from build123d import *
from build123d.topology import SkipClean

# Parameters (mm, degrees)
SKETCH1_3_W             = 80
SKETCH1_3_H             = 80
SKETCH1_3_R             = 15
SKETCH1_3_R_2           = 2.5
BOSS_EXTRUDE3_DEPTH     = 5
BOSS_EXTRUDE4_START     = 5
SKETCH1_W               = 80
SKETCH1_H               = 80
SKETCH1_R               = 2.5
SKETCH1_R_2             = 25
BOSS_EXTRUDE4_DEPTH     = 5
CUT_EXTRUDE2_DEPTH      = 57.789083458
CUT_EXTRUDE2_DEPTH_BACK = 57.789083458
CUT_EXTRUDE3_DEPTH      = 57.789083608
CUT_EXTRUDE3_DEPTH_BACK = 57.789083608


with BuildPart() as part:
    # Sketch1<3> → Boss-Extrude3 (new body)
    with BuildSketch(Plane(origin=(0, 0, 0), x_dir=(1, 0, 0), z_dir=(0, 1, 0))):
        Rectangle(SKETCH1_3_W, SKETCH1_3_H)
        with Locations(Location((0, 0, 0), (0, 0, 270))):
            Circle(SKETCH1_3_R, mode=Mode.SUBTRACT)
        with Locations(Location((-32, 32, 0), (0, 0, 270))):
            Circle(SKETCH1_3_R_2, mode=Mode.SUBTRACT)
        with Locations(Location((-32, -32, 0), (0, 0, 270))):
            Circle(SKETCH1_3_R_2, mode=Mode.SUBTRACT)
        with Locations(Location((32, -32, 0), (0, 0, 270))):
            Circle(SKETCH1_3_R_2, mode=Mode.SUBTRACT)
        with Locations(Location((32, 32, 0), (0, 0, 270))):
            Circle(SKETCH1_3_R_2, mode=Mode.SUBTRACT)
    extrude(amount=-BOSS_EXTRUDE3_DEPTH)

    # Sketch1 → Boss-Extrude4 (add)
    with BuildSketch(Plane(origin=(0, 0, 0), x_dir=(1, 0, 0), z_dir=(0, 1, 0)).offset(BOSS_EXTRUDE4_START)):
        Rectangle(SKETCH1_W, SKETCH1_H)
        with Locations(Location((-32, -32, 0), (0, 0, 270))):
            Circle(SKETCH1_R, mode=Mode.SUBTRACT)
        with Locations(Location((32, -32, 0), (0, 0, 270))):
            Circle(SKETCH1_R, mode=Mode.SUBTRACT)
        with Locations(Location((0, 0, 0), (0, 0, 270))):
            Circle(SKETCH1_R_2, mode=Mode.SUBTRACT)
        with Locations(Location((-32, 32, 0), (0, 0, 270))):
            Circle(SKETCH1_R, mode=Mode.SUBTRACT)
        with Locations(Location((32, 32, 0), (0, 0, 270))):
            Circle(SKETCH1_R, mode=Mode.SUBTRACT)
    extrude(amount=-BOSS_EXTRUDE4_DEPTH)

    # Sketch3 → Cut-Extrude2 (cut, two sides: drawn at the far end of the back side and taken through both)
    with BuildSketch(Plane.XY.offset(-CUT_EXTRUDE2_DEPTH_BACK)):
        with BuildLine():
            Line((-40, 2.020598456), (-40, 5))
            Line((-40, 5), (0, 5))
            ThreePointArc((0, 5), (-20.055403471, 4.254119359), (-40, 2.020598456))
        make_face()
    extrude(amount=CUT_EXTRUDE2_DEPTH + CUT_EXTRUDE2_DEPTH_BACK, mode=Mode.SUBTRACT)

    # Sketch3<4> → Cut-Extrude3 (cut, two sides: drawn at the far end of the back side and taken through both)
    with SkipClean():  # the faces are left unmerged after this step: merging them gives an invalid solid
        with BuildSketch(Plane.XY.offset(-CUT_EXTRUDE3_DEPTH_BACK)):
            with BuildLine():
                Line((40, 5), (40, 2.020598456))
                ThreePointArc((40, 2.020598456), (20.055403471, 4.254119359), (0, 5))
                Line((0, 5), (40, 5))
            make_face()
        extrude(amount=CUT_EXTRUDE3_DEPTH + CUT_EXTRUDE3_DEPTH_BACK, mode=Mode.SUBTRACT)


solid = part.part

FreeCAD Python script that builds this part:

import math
import FreeCAD as App
import Part
import Sketcher
from FreeCAD import Vector
Q = App.Units.Quantity


def add_polygon(sketch, points):
    """Adds a closed chain of lines whose ends are joined by coincident constraints."""
    first, n = sketch.GeometryCount, len(points)
    for a, b in zip(points, points[1:] + points[:1]):
        sketch.addGeometry(Part.LineSegment(App.Vector(*a, 0), App.Vector(*b, 0)), False)
    for i in range(n):
        sketch.addConstraint(Sketcher.Constraint("Coincident", first + i, 2, first + (i + 1) % n, 1))

doc = App.newDocument("Part")
body = doc.addObject("PartDesign::Body", "Body")

# Sketch on XZ plane
sketch1 = doc.addObject("Sketcher::SketchObject", "Sketch")
body.addObject(sketch1)
sketch1.AttachmentSupport = (doc.XZ_Plane, [""])
sketch1.MapMode = "FlatFace"
add_polygon(sketch1, [(-40, -40), (-40, 40), (40, 40), (40, -40)])  # lines 0-3
sketch1.addGeometry(Part.Circle(Vector(-32, 32, 0), Vector(0, 0, 1), 2.5), False)  # 4
sketch1.addGeometry(Part.Circle(Vector(32, 32, 0), Vector(0, 0, 1), 2.5), False)  # 5
sketch1.addGeometry(Part.Circle(Vector(-32, -32, 0), Vector(0, 0, 1), 2.5), False)  # 6
sketch1.addGeometry(Part.Circle(Vector(0, 0, 0), Vector(0, 0, 1), 15), False)  # 7
sketch1.addGeometry(Part.Circle(Vector(32, -32, 0), Vector(0, 0, 1), 2.5), False)  # 8
sketch1.addConstraint([
    Sketcher.Constraint("Vertical", 0),
    Sketcher.Constraint("Horizontal", 1),
    Sketcher.Constraint("Vertical", 2),
    Sketcher.Constraint("Horizontal", 3),
    Sketcher.Constraint("Coincident", 7, 3, -1, 1),
    Sketcher.Constraint("Equal", 4, 5),
    Sketcher.Constraint("Equal", 5, 6),
    Sketcher.Constraint("Equal", 6, 8),
    Sketcher.Constraint("Symmetric", 5, 3, 6, 3, -1, 1),
    Sketcher.Constraint("Symmetric", 4, 3, 8, 3, -1, 1),
    Sketcher.Constraint("Symmetric", 0, 2, 2, 2, -1, 1),
    Sketcher.Constraint("Symmetric", 4, 3, 5, 3, -2),
    Sketcher.Constraint("Equal", 3, 0),
    Sketcher.Constraint("Diameter", 4, Q("5 mm")),
    Sketcher.Constraint("Diameter", 7, Q("30 mm")),
    Sketcher.Constraint("DistanceX", 1, 1, 1, 2, Q("80 mm")),
    Sketcher.Constraint("DistanceX", 4, 3, -1, 1, Q("32 mm")),
    Sketcher.Constraint("DistanceY", -1, 1, 4, 3, Q("32 mm")),
])
pad1 = doc.addObject("PartDesign::Pad", "Pad")
body.addObject(pad1)
pad1.Profile = sketch1
pad1.Length = 5

# Sketch on XZ plane
sketch2 = doc.addObject("Sketcher::SketchObject", "Sketch001")
body.addObject(sketch2)
sketch2.AttachmentSupport = (doc.XZ_Plane, [""])
sketch2.MapMode = "FlatFace"
sketch2.AttachmentOffset = App.Placement(Vector(0, 0, -5), App.Rotation())
add_polygon(sketch2, [(-40, -40), (-40, 40), (40, 40), (40, -40)])  # lines 0-3
sketch2.addGeometry(Part.Circle(Vector(-32, 32, 0), Vector(0, 0, 1), 2.5), False)  # 4
sketch2.addGeometry(Part.Circle(Vector(32, 32, 0), Vector(0, 0, 1), 2.5), False)  # 5
sketch2.addGeometry(Part.Circle(Vector(-32, -32, 0), Vector(0, 0, 1), 2.5), False)  # 6
sketch2.addGeometry(Part.Circle(Vector(0, 0, 0), Vector(0, 0, 1), 25), False)  # 7
sketch2.addGeometry(Part.Circle(Vector(32, -32, 0), Vector(0, 0, 1), 2.5), False)  # 8
sketch2.addConstraint([
    Sketcher.Constraint("Vertical", 0),
    Sketcher.Constraint("Horizontal", 1),
    Sketcher.Constraint("Vertical", 2),
    Sketcher.Constraint("Horizontal", 3),
    Sketcher.Constraint("Coincident", 7, 3, -1, 1),
    Sketcher.Constraint("Equal", 4, 5),
    Sketcher.Constraint("Equal", 5, 6),
    Sketcher.Constraint("Equal", 6, 8),
    Sketcher.Constraint("Symmetric", 5, 3, 6, 3, -1, 1),
    Sketcher.Constraint("Symmetric", 4, 3, 8, 3, -1, 1),
    Sketcher.Constraint("Symmetric", 0, 2, 2, 2, -1, 1),
    Sketcher.Constraint("Symmetric", 4, 3, 5, 3, -2),
    Sketcher.Constraint("Equal", 3, 0),
    Sketcher.Constraint("Diameter", 4, Q("5 mm")),
    Sketcher.Constraint("Diameter", 7, Q("50 mm")),
    Sketcher.Constraint("DistanceX", 1, 1, 1, 2, Q("80 mm")),
    Sketcher.Constraint("DistanceX", 4, 3, -1, 1, Q("32 mm")),
    Sketcher.Constraint("DistanceY", -1, 1, 4, 3, Q("32 mm")),
])
pad2 = doc.addObject("PartDesign::Pad", "Pad001")
body.addObject(pad2)
pad2.Profile = sketch2
pad2.Length = 5

# Sketch on XY plane
sketch3 = doc.addObject("Sketcher::SketchObject", "Sketch002")
body.addObject(sketch3)
sketch3.AttachmentSupport = (doc.XY_Plane, [""])
sketch3.MapMode = "FlatFace"
sketch3.addGeometry([
    Part.LineSegment(Vector(-40, 5, 0), Vector(-40, 2, 0)),
    Part.ArcOfCircle(Part.Circle(Vector(0, -265, 0), Vector(0, 0, 1), 270), math.radians(90), math.radians(98.52)),
    Part.LineSegment(Vector(0, 5, 0), Vector(-40, 5, 0)),
], False)
sketch3.addConstraint([
    Sketcher.Constraint("Coincident", 0, 2, 1, 2),
    Sketcher.Constraint("Tangent", 1, 1, 2, 1),
    Sketcher.Constraint("Coincident", 2, 2, 0, 1),
    Sketcher.Constraint("Vertical", 0),
    Sketcher.Constraint("Horizontal", 2),
    Sketcher.Constraint("PointOnObject", 1, 3, -2),
    Sketcher.Constraint("Radius", 1, Q("270 mm")),
    Sketcher.Constraint("DistanceX", 2, 2, 2, 1, Q("40 mm")),
    Sketcher.Constraint("DistanceY", 1, 3, -1, 1, Q("265 mm")),
])
pocket1 = doc.addObject("PartDesign::Pocket", "Pocket")
body.addObject(pocket1)
pocket1.Profile = sketch3
pocket1.Type = "ThroughAll"
pocket1.Midplane = True

# Sketch on XY plane
sketch4 = doc.addObject("Sketcher::SketchObject", "Sketch003")
body.addObject(sketch4)
sketch4.AttachmentSupport = (doc.XY_Plane, [""])
sketch4.MapMode = "FlatFace"
sketch4.addGeometry([
    Part.LineSegment(Vector(40, 2, 0), Vector(40, 5, 0)),
    Part.LineSegment(Vector(40, 5, 0), Vector(0, 5, 0)),
    Part.ArcOfCircle(Part.Circle(Vector(0, -265, 0), Vector(0, 0, 1), 270), math.radians(81.48), math.radians(90)),
], False)
sketch4.addConstraint([
    Sketcher.Constraint("Coincident", 0, 2, 1, 1),
    Sketcher.Constraint("Tangent", 1, 2, 2, 2),
    Sketcher.Constraint("Coincident", 2, 1, 0, 1),
    Sketcher.Constraint("Vertical", 0),
    Sketcher.Constraint("Horizontal", 1),
    Sketcher.Constraint("PointOnObject", 2, 3, -2),
    Sketcher.Constraint("Radius", 2, Q("270 mm")),
    Sketcher.Constraint("DistanceX", 1, 2, 1, 1, Q("40 mm")),
    Sketcher.Constraint("DistanceY", 2, 3, -1, 1, Q("265 mm")),
])
pocket2 = doc.addObject("PartDesign::Pocket", "Pocket001")
body.addObject(pocket2)
pocket2.Profile = sketch4
pocket2.Type = "ThroughAll"
pocket2.Midplane = True

doc.recompute()
